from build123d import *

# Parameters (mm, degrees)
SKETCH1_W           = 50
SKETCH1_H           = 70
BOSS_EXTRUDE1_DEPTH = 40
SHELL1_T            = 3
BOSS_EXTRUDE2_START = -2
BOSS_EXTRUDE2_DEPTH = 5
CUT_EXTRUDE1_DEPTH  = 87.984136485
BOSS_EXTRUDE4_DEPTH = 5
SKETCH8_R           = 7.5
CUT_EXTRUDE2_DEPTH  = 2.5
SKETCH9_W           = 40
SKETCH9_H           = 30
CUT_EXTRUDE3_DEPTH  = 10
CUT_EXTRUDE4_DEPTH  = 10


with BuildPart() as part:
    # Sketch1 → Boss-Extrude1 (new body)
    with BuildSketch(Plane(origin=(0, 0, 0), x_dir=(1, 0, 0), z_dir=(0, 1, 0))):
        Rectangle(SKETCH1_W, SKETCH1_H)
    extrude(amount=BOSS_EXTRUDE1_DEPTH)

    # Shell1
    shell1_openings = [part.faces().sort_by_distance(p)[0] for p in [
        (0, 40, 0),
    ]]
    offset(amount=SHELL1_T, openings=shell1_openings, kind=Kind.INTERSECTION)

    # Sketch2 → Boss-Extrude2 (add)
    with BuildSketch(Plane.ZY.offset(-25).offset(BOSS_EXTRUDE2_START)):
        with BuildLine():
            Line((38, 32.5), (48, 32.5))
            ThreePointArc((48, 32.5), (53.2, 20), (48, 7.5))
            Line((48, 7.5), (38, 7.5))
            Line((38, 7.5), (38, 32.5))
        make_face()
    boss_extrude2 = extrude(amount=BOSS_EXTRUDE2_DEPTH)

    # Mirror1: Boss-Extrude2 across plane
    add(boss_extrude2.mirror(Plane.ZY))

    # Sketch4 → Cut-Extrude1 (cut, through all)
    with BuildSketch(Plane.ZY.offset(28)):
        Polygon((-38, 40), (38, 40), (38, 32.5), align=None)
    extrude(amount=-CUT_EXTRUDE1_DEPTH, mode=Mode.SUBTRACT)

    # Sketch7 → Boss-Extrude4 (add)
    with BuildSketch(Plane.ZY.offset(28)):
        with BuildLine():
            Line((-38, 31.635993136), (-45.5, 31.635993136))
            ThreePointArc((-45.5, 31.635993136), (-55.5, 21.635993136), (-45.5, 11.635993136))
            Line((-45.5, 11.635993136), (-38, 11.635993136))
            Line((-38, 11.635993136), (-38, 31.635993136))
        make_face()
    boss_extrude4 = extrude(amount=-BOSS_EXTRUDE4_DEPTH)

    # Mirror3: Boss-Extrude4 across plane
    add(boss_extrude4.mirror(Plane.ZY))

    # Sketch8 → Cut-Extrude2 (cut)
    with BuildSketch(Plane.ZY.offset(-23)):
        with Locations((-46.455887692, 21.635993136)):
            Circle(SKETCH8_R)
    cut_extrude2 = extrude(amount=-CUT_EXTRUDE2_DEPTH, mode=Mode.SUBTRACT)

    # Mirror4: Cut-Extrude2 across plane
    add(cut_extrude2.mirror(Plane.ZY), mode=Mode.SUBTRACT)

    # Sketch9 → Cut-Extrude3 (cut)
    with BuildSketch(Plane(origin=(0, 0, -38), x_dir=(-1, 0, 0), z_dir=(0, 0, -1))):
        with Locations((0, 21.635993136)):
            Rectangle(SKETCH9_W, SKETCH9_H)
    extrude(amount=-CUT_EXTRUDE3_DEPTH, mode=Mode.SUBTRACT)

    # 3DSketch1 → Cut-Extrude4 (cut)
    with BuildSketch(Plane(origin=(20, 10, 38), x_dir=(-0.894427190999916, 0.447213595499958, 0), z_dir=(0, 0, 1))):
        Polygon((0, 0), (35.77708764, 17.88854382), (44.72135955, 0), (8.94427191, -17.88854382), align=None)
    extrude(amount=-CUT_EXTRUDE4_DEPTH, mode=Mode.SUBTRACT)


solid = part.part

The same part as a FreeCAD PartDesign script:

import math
import FreeCAD as App
import Part
import Sketcher
from FreeCAD import Vector


def faces_at(feature, points):
    """Names of the faces that lie closest to the given points."""
    faces = feature.Shape.Faces
    near = lambda p: min(range(len(faces)), key=lambda i: faces[i].distToShape(Part.Vertex(*p))[0])
    return sorted({f"Face{near(p) + 1}" for p in points})

doc = App.newDocument("Part")
params = doc.addObject("Spreadsheet::Sheet", "Params")
for row, (alias, value) in enumerate([
    ("sketch1_width", "50 mm"),
    ("sketch1_height", "70 mm"),
    ("pad1_length", "40 mm"),
    ("thickness_wall", "3 mm"),
    ("sketch2_width", "25 mm"),
    ("sketch2_height", "10 mm"),
    ("pad2_length", "5 mm"),
    ("sketch3_height", "76 mm"),
    ("sketch3_width", "7.5 mm"),
    ("sketch4_radius", "10 mm"),
    ("sketch4_height", "7.5 mm"),
    ("pad3_length", "5 mm"),
    ("sketch5_diameter", "15 mm"),
    ("pocket2_length", "2.5 mm"),
    ("sketch6_width", "40 mm"),
    ("sketch6_height", "30 mm"),
    ("pocket3_length", "10 mm"),
    ("sketch7_width", "40 mm"),
    ("sketch7_height", "20 mm"),
    ("pocket4_length", "10 mm"),
], start=1):
    params.set(f"A{row}", alias)
    params.set(f"B{row}", "=" + value)
    params.setAlias(f"B{row}", alias)

body = doc.addObject("PartDesign::Body", "Body")

# Sketch on XZ plane
sketch1 = doc.addObject("Sketcher::SketchObject", "Sketch")
body.addObject(sketch1)
sketch1.AttachmentSupport = (doc.XZ_Plane, [""])
sketch1.MapMode = "FlatFace"
sketch1.addGeometry([
    Part.LineSegment(Vector(-25, -35, 0), Vector(-25, 35, 0)),
    Part.LineSegment(Vector(-25, 35, 0), Vector(25, 35, 0)),
    Part.LineSegment(Vector(25, 35, 0), Vector(25, -35, 0)),
    Part.LineSegment(Vector(25, -35, 0), Vector(-25, -35, 0)),
], False)
sketch1.addConstraint([
    Sketcher.Constraint("Coincident", 0, 2, 1, 1),
    Sketcher.Constraint("Coincident", 1, 2, 2, 1),
    Sketcher.Constraint("Coincident", 2, 2, 3, 1),
    Sketcher.Constraint("Coincident", 3, 2, 0, 1),
    Sketcher.Constraint("Vertical", 0),
    Sketcher.Constraint("Horizontal", 1),
    Sketcher.Constraint("Vertical", 2),
    Sketcher.Constraint("Horizontal", 3),
    Sketcher.Constraint("Symmetric", 0, 2, 2, 2, -1, 1),
    Sketcher.Constraint("DistanceX", 1, 1, 1, 2, 50.0),
    Sketcher.Constraint("DistanceY", 0, 1, 0, 2, 70.0),
])
sketch1.setExpression("Constraints[9]", "Params.sketch1_width")
sketch1.setExpression("Constraints[10]", "Params.sketch1_height")
pad1 = doc.addObject("PartDesign::Pad", "Pad")
body.addObject(pad1)
pad1.Profile = sketch1
pad1.setExpression("Length", "Params.pad1_length")
pad1.Reversed = True
doc.recompute()

thickness = doc.addObject("PartDesign::Thickness", "Thickness")
body.addObject(thickness)
thickness.Base = (pad1, faces_at(pad1, [(0, 40, 0)]))
thickness.setExpression("Value", "Params.thickness_wall")
thickness.Reversed = False
thickness.Join = "Intersection"

# Sketch on YZ plane
sketch2 = doc.addObject("Sketcher::SketchObject", "Sketch001")
body.addObject(sketch2)
sketch2.AttachmentSupport = (doc.YZ_Plane, [""])
sketch2.MapMode = "FlatFace"
sketch2.AttachmentOffset = App.Placement(Vector(0, 0, 27), App.Rotation())
sketch2.addGeometry([
    Part.LineSegment(Vector(32, 48, 0), Vector(32, 38, 0)),
    Part.LineSegment(Vector(32, 38, 0), Vector(8, 38, 0)),
    Part.LineSegment(Vector(8, 38, 0), Vector(8, 48, 0)),
    Part.ArcOfCircle(Part.Circle(Vector(20, 36, 0), Vector(0, 0, 1), 18), math.radians(45), math.radians(135)),
], False)
sketch2.addConstraint([
    Sketcher.Constraint("Coincident", 0, 2, 1, 1),
    Sketcher.Constraint("Coincident", 1, 2, 2, 1),
    Sketcher.Constraint("Coincident", 2, 2, 3, 2),
    Sketcher.Constraint("Coincident", 3, 1, 0, 1),
    Sketcher.Constraint("Vertical", 0),
    Sketcher.Constraint("Horizontal", 1),
    Sketcher.Constraint("Vertical", 2),
    Sketcher.Constraint("Horizontal", 2, 2, 3, 1),
    Sketcher.Constraint("DistanceX", 1, 2, 1, 1, 25.0),
    Sketcher.Constraint("DistanceY", 0, 2, 0, 1, 10.0),
    Sketcher.Constraint("DistanceX", -1, 1, 3, 3, 20.0),
    Sketcher.Constraint("DistanceY", -1, 1, 0, 2, 38.0),
    Sketcher.Constraint("Radius", 3, 17.624038),
])
sketch2.setExpression("Constraints[8]", "Params.sketch2_width")
sketch2.setExpression("Constraints[9]", "Params.sketch2_height")
pad2 = doc.addObject("PartDesign::Pad", "Pad001")
body.addObject(pad2)
pad2.Profile = sketch2
pad2.setExpression("Length", "Params.pad2_length")
pad2.Reversed = True
doc.recompute()

mirrored = doc.addObject("PartDesign::Mirrored", "Mirrored")
body.addObject(mirrored)
mirrored.Originals = [pad2]
mirrored.MirrorPlane = (doc.YZ_Plane, [""])
body.Tip = mirrored

# Sketch on YZ plane
sketch3 = doc.addObject("Sketcher::SketchObject", "Sketch002")
body.addObject(sketch3)
sketch3.AttachmentSupport = (doc.YZ_Plane, [""])
sketch3.MapMode = "FlatFace"
sketch3.AttachmentOffset = App.Placement(Vector(0, 0, -28), App.Rotation())
sketch3.addGeometry([
    Part.LineSegment(Vector(40, 38, 0), Vector(40, -38, 0)),
    Part.LineSegment(Vector(40, -38, 0), Vector(32, 38, 0)),
    Part.LineSegment(Vector(32, 38, 0), Vector(40, 38, 0)),
], False)
sketch3.addConstraint([
    Sketcher.Constraint("Coincident", 0, 2, 1, 1),
    Sketcher.Constraint("Coincident", 1, 2, 2, 1),
    Sketcher.Constraint("Coincident", 2, 2, 0, 1),
    Sketcher.Constraint("Vertical", 0),
    Sketcher.Constraint("Horizontal", 2),
    Sketcher.Constraint("DistanceY", 0, 2, 0, 1, 76.0),
    Sketcher.Constraint("DistanceX", 2, 1, 2, 2, 7.5),
    Sketcher.Constraint("DistanceX", -1, 1, 0, 2, 40.0),
    Sketcher.Constraint("DistanceY", 0, 2, -1, 1, 38.0),
])
sketch3.setExpression("Constraints[5]", "Params.sketch3_height")
sketch3.setExpression("Constraints[6]", "Params.sketch3_width")
pocket1 = doc.addObject("PartDesign::Pocket", "Pocket")
body.addObject(pocket1)
pocket1.Profile = sketch3
pocket1.Type = "ThroughAll"
pocket1.Reversed = True

# Sketch on YZ plane
sketch4 = doc.addObject("Sketcher::SketchObject", "Sketch003")
body.addObject(sketch4)
sketch4.AttachmentSupport = (doc.YZ_Plane, [""])
sketch4.MapMode = "FlatFace"
sketch4.AttachmentOffset = App.Placement(Vector(0, 0, -28), App.Rotation())
sketch4.addGeometry([
    Part.LineSegment(Vector(32, -38, 0), Vector(32, -46, 0)),
    Part.ArcOfCircle(Part.Circle(Vector(22, -46, 0), Vector(0, 0, 1), 10), math.radians(180), math.radians(360)),
    Part.LineSegment(Vector(12, -46, 0), Vector(12, -38, 0)),
    Part.LineSegment(Vector(12, -38, 0), Vector(32, -38, 0)),
], False)
sketch4.addConstraint([
    Sketcher.Constraint("Tangent", 0, 2, 1, 2),
    Sketcher.Constraint("Tangent", 1, 1, 2, 1),
    Sketcher.Constraint("Coincident", 2, 2, 3, 1),
    Sketcher.Constraint("Coincident", 3, 2, 0, 1),
    Sketcher.Constraint("Vertical", 0),
    Sketcher.Constraint("Vertical", 2),
    Sketcher.Constraint("Horizontal", 3),
    Sketcher.Constraint("Radius", 1, 10.0),
    Sketcher.Constraint("DistanceY", 0, 2, 0, 1, 7.5),
    Sketcher.Constraint("DistanceY", 2, 2, -1, 1, 38.0),
    Sketcher.Constraint("DistanceX", -1, 1, 1, 3, 21.635993),
])
sketch4.setExpression("Constraints[7]", "Params.sketch4_radius")
sketch4.setExpression("Constraints[8]", "Params.sketch4_height")
pad3 = doc.addObject("PartDesign::Pad", "Pad002")
body.addObject(pad3)
pad3.Profile = sketch4
pad3.setExpression("Length", "Params.pad3_length")
doc.recompute()

mirrored2 = doc.addObject("PartDesign::Mirrored", "Mirrored001")
body.addObject(mirrored2)
mirrored2.Originals = [pad3]
mirrored2.MirrorPlane = (doc.YZ_Plane, [""])
body.Tip = mirrored2

# Sketch on YZ plane
sketch5 = doc.addObject("Sketcher::SketchObject", "Sketch004")
body.addObject(sketch5)
sketch5.AttachmentSupport = (doc.YZ_Plane, [""])
sketch5.MapMode = "FlatFace"
sketch5.AttachmentOffset = App.Placement(Vector(0, 0, 23), App.Rotation())
sketch5.addGeometry(Part.Circle(Vector(22, -46, 0), Vector(0, 0, 1), 8), False)
sketch5.addConstraint([
    Sketcher.Constraint("Diameter", 0, 15.0),
    Sketcher.Constraint("DistanceX", -1, 1, 0, 3, 21.635993),
    Sketcher.Constraint("DistanceY", 0, 3, -1, 1, 46.455888),
])
sketch5.setExpression("Constraints[0]", "Params.sketch5_diameter")
pocket2 = doc.addObject("PartDesign::Pocket", "Pocket001")
body.addObject(pocket2)
pocket2.Profile = sketch5
pocket2.setExpression("Length", "Params.pocket2_length")
pocket2.Reversed = True
doc.recompute()

mirrored3 = doc.addObject("PartDesign::Mirrored", "Mirrored002")
body.addObject(mirrored3)
mirrored3.Originals = [pocket2]
mirrored3.MirrorPlane = (doc.YZ_Plane, [""])
body.Tip = mirrored3

# Sketch on XY plane
sketch6 = doc.addObject("Sketcher::SketchObject", "Sketch005")
body.addObject(sketch6)
sketch6.AttachmentSupport = (doc.XY_Plane, [""])
sketch6.MapMode = "FlatFace"
sketch6.AttachmentOffset = App.Placement(Vector(0, 0, -38), App.Rotation())
sketch6.addGeometry([
    Part.LineSegment(Vector(20, 37, 0), Vector(20, 7, 0)),
    Part.LineSegment(Vector(20, 7, 0), Vector(-20, 7, 0)),
    Part.LineSegment(Vector(-20, 7, 0), Vector(-20, 37, 0)),
    Part.LineSegment(Vector(-20, 37, 0), Vector(20, 37, 0)),
], False)
sketch6.addConstraint([
    Sketcher.Constraint("Coincident", 0, 2, 1, 1),
    Sketcher.Constraint("Coincident", 1, 2, 2, 1),
    Sketcher.Constraint("Coincident", 2, 2, 3, 1),
    Sketcher.Constraint("Coincident", 3, 2, 0, 1),
    Sketcher.Constraint("Vertical", 0),
    Sketcher.Constraint("Horizontal", 1),
    Sketcher.Constraint("Vertical", 2),
    Sketcher.Constraint("Horizontal", 3),
    Sketcher.Constraint("DistanceX", 1, 2, 1, 1, 40.0),
    Sketcher.Constraint("DistanceY", 0, 2, 0, 1, 30.0),
    Sketcher.Constraint("DistanceX", -1, 1, 0, 2, 20.0),
    Sketcher.Constraint("DistanceY", -1, 1, 0, 2, 6.635993),
])
sketch6.setExpression("Constraints[8]", "Params.sketch6_width")
sketch6.setExpression("Constraints[9]", "Params.sketch6_height")
pocket3 = doc.addObject("PartDesign::Pocket", "Pocket002")
body.addObject(pocket3)
pocket3.Profile = sketch6
pocket3.setExpression("Length", "Params.pocket3_length")
pocket3.Reversed = True

# Sketch on XY plane
sketch7 = doc.addObject("Sketcher::SketchObject", "Sketch006")
body.addObject(sketch7)
sketch7.AttachmentSupport = (doc.XY_Plane, [""])
sketch7.MapMode = "FlatFace"
sketch7.AttachmentOffset = App.Placement(Vector(0, 0, 38), App.Rotation())
sketch7.addGeometry([
    Part.LineSegment(Vector(-20, 10, 0), Vector(20, 10, 0)),
    Part.LineSegment(Vector(20, 10, 0), Vector(20, 30, 0)),
    Part.LineSegment(Vector(20, 30, 0), Vector(-20, 30, 0)),
    Part.LineSegment(Vector(-20, 30, 0), Vector(-20, 10, 0)),
], False)
sketch7.addConstraint([
    Sketcher.Constraint("Coincident", 0, 2, 1, 1),
    Sketcher.Constraint("Coincident", 1, 2, 2, 1),
    Sketcher.Constraint("Coincident", 2, 2, 3, 1),
    Sketcher.Constraint("Coincident", 3, 2, 0, 1),
    Sketcher.Constraint("Horizontal", 0),
    Sketcher.Constraint("Vertical", 1),
    Sketcher.Constraint("Horizontal", 2),
    Sketcher.Constraint("Vertical", 3),
    Sketcher.Constraint("DistanceX", 0, 1, 0, 2, 40.0),
    Sketcher.Constraint("DistanceY", 1, 1, 1, 2, 20.0),
    Sketcher.Constraint("DistanceX", -1, 1, 0, 2, 20.0),
    Sketcher.Constraint("DistanceY", -1, 1, 0, 2, 10.0),
])
sketch7.setExpression("Constraints[8]", "Params.sketch7_width")
sketch7.setExpression("Constraints[9]", "Params.sketch7_height")
pocket4 = doc.addObject("PartDesign::Pocket", "Pocket003")
body.addObject(pocket4)
pocket4.Profile = sketch7
pocket4.setExpression("Length", "Params.pocket4_length")

doc.recompute()
